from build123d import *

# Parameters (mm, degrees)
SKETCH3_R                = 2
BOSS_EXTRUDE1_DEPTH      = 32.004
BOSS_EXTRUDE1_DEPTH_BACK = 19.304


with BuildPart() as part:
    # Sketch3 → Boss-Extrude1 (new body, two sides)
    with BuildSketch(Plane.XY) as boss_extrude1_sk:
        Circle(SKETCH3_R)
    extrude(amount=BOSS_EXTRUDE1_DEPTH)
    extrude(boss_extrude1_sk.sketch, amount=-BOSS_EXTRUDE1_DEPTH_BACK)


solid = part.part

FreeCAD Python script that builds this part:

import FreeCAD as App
import Part
import Sketcher
from FreeCAD import Vector

doc = App.newDocument("Part")
params = doc.addObject("Spreadsheet::Sheet", "Params")
for row, (alias, value) in enumerate([
    ("sketch1_diameter", "4 mm"),
    ("pad1_length", "32.004 mm"),
    ("pad1_length2", "19.304 mm"),
], start=1):
    params.set(f"A{row}", alias)
    params.set(f"B{row}", "=" + value)
    params.setAlias(f"B{row}", alias)

body = doc.addObject("PartDesign::Body", "Body")

# Sketch on XY plane
sketch1 = body.newObject("Sketcher::SketchObject", "Sketch")
sketch1.AttachmentSupport = (doc.getObject("XY_Plane"), [""])
sketch1.MapMode = "FlatFace"
sketch1.addGeometry(Part.Circle(Vector(0, 0, 0), Vector(0, 0, 1), 2), False)
sketch1.addConstraint(Sketcher.Constraint("Coincident", 0, 3, -1, 1))
sketch1.addConstraint(Sketcher.Constraint("Diameter", 0, 4.0))
sketch1.setExpression("Constraints[1]", "Params.sketch1_diameter")
pad1 = body.newObject("PartDesign::Pad", "Pad")
pad1.Profile = sketch1
pad1.Type = "TwoLengths"
pad1.setExpression("Length", "Params.pad1_length")
pad1.setExpression("Length2", "Params.pad1_length2")

doc.recompute()
